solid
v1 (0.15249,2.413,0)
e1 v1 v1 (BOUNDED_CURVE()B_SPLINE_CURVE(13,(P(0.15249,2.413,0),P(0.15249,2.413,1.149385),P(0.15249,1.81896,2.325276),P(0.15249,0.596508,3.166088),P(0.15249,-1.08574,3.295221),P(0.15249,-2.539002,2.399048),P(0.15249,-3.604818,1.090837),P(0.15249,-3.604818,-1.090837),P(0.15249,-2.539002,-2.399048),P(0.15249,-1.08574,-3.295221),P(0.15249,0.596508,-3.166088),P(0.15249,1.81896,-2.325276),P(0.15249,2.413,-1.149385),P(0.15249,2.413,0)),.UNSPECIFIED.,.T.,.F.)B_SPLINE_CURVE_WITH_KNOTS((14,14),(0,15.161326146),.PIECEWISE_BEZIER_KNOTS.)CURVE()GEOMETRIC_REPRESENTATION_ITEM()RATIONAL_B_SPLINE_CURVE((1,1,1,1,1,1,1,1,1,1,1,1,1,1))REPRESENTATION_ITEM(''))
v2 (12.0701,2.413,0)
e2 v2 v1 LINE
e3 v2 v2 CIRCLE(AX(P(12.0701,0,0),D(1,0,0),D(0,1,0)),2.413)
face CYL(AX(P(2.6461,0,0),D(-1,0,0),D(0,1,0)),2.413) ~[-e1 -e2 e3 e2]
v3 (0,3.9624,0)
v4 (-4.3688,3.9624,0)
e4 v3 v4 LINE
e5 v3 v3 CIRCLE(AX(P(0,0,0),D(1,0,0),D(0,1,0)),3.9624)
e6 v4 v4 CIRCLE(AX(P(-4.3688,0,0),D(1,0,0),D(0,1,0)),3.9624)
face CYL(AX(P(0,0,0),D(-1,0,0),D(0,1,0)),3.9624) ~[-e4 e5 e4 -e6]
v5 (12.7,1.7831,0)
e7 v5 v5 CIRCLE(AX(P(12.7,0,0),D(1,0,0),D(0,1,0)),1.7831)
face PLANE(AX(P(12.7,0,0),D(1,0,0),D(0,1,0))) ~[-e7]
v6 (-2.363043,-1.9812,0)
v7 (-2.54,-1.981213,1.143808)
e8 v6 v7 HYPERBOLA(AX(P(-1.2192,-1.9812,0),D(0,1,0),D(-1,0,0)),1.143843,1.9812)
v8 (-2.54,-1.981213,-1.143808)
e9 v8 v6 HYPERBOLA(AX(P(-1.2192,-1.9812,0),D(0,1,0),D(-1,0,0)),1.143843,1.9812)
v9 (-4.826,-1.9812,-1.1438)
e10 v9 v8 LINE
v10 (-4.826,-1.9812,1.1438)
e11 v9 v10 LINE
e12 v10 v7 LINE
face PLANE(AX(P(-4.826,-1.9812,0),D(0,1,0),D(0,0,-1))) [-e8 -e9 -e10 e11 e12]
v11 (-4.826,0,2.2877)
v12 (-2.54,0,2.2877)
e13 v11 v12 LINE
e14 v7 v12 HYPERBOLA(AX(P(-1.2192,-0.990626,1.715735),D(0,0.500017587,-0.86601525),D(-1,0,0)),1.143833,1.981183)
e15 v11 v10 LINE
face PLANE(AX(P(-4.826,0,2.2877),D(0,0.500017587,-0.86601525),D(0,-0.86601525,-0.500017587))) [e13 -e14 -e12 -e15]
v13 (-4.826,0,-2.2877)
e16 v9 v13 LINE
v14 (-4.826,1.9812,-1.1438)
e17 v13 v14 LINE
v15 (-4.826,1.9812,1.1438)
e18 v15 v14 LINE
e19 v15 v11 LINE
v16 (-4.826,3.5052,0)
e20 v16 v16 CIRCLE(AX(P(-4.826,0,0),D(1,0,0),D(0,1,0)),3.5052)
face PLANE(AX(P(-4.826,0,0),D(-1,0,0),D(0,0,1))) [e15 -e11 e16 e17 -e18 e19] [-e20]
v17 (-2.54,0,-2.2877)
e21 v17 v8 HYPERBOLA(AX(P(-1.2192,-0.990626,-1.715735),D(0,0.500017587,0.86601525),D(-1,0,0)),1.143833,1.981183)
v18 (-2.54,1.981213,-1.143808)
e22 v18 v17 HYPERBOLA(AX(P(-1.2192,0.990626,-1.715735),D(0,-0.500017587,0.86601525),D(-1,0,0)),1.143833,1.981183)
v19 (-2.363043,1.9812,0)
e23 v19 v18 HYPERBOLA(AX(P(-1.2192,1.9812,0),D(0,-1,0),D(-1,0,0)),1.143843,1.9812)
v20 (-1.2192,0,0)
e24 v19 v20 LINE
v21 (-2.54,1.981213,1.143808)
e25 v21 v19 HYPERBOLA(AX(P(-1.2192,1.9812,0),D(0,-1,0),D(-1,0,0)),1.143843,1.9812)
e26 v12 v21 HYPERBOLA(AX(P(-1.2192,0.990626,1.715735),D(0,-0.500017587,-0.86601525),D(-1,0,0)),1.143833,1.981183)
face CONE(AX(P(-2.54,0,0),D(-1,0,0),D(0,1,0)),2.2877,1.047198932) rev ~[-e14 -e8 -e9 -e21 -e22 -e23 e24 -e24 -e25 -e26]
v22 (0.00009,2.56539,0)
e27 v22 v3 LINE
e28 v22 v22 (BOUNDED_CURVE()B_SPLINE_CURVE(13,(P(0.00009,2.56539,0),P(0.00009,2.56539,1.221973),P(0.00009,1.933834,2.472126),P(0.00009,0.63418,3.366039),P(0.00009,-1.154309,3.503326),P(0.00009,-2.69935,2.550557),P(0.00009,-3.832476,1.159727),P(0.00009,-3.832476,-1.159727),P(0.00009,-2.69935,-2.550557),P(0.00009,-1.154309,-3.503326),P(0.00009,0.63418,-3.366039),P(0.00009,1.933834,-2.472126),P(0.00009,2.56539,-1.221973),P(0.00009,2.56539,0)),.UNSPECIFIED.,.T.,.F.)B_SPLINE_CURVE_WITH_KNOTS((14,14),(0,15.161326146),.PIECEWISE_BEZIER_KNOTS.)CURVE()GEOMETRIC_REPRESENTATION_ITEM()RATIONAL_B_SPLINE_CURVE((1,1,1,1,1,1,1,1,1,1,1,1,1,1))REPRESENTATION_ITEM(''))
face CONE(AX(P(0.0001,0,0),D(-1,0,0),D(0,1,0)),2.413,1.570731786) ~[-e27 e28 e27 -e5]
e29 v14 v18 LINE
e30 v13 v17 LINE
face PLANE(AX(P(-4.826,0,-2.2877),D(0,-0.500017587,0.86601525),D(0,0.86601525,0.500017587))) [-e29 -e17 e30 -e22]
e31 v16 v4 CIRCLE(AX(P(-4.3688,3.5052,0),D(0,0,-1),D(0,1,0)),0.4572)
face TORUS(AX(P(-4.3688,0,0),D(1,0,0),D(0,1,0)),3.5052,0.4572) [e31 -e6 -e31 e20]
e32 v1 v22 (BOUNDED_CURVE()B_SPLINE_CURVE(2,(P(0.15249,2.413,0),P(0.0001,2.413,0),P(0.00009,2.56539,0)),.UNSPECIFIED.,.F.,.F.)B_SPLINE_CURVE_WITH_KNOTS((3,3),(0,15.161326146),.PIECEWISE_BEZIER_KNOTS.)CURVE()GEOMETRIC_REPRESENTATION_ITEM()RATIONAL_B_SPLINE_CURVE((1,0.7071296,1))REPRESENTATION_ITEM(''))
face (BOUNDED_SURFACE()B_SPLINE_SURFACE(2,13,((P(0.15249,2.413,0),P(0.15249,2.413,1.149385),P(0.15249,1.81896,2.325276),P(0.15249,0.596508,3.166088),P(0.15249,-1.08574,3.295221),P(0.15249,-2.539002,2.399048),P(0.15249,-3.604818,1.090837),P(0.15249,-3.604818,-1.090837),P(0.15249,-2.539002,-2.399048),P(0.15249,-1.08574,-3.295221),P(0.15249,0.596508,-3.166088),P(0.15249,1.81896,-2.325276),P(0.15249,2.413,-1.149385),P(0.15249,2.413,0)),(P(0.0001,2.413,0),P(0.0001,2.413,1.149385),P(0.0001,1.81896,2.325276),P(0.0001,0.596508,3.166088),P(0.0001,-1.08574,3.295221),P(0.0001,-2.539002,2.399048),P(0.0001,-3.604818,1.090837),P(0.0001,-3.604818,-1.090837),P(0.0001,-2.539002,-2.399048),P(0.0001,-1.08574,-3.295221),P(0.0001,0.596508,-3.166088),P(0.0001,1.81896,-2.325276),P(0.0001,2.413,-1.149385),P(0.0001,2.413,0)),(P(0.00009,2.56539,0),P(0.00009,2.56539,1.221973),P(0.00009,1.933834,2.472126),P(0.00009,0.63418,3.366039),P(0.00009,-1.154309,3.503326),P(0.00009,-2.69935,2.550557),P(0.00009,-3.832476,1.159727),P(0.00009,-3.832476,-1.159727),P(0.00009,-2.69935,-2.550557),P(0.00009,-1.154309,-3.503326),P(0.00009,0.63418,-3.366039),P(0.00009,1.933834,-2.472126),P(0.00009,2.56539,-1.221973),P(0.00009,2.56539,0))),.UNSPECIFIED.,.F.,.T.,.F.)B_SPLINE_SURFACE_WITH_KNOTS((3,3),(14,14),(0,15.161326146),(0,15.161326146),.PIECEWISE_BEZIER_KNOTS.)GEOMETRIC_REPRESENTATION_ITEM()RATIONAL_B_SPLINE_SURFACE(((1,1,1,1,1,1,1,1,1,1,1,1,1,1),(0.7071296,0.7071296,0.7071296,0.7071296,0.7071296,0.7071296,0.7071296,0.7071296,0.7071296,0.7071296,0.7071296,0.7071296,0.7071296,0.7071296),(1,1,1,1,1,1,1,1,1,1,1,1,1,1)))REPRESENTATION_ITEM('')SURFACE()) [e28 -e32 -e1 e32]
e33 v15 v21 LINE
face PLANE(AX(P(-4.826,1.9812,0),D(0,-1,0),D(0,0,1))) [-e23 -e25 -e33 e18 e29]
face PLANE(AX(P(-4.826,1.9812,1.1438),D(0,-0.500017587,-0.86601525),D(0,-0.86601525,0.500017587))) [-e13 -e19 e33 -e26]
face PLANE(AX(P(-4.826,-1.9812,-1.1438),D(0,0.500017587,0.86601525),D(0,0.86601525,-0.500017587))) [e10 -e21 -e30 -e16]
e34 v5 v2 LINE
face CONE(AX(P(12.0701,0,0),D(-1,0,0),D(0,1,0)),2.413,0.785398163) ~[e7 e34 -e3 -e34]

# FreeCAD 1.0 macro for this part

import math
import FreeCAD as App
import Part
import Sketcher
from FreeCAD import Vector
Q = App.Units.Quantity


def edges_at(feature, points):
    """Names of the edges that pass closest to the given points."""
    edges = feature.Shape.Edges
    near = lambda p: min(range(len(edges)), key=lambda i: edges[i].distToShape(Part.Vertex(*p))[0])
    return sorted({f"Edge{near(p) + 1}" for p in points})

doc = App.newDocument("Part")
params = doc.addObject("Spreadsheet::Sheet", "Params")
for row, (alias, value) in enumerate([
    ("sketch1_width", "0.5 in"),
    ("sketch1_width2", "0.19 in"),
    ("sketch1_width3", "0.09 in"),
    ("sketch1_width4", "0.548 in"),
    ("sketch1_height", "0.095 in"),
    ("revolution_angle", "360 deg"),
    ("pad1_length", "2.463 mm"),
    ("fillet_radius", "0.018 in"),
    ("chamfer_size", "0.0247992 in"),
    ("chamfer_size2", "0.0247992 in"),
    ("fillet2_radius", "0.006 in"),
], start=1):
    params.set(f"A{row}", alias)
    params.set(f"B{row}", "=" + value)
    params.setAlias(f"B{row}", alias)

body = doc.addObject("PartDesign::Body", "Body")

# Sketch on XY plane
sketch1 = doc.addObject("Sketcher::SketchObject", "Sketch")
body.addObject(sketch1)
sketch1.AttachmentSupport = (doc.XY_Plane, [""])
sketch1.MapMode = "FlatFace"
sketch1.addGeometry([
    Part.LineSegment(Vector(-2.5, 2.3, 0), Vector(-1.2, 0, 0)),  # 0
    Part.LineSegment(Vector(-1.2, 0, 0), Vector(12.7, 0, 0)),  # 1
    Part.LineSegment(Vector(12.7, 0, 0), Vector(12.7, 2.4, 0)),  # 2
    Part.LineSegment(Vector(12.7, 2.4, 0), Vector(0, 2.4, 0)),  # 3
    Part.LineSegment(Vector(0, 2.4, 0), Vector(0, 4, 0)),  # 4
    Part.LineSegment(Vector(0, 4, 0), Vector(-4.8, 4, 0)),  # 5
    Part.LineSegment(Vector(-4.8, 4, 0), Vector(-4.8, 2.3, 0)),  # 6
    Part.LineSegment(Vector(-4.8, 2.3, 0), Vector(-2.5, 2.3, 0)),  # 7
], False)
sketch1.addConstraint([
    Sketcher.Constraint("Coincident", 0, 2, 1, 1),
    Sketcher.Constraint("Coincident", 1, 2, 2, 1),
    Sketcher.Constraint("Coincident", 2, 2, 3, 1),
    Sketcher.Constraint("Coincident", 3, 2, 4, 1),
    Sketcher.Constraint("Coincident", 4, 2, 5, 1),
    Sketcher.Constraint("Coincident", 5, 2, 6, 1),
    Sketcher.Constraint("Coincident", 6, 2, 7, 1),
    Sketcher.Constraint("Coincident", 7, 2, 0, 1),
    Sketcher.Constraint("Horizontal", 1),
    Sketcher.Constraint("Vertical", 2),
    Sketcher.Constraint("Horizontal", 3),
    Sketcher.Constraint("Vertical", 4),
    Sketcher.Constraint("Horizontal", 5),
    Sketcher.Constraint("Vertical", 6),
    Sketcher.Constraint("Horizontal", 7),
    Sketcher.Constraint("PointOnObject", 0, 2, -1),
    Sketcher.Constraint("PointOnObject", 3, 2, -2),
    Sketcher.Constraint("DistanceX", 3, 2, 3, 1, Q("0.5 in")),
    Sketcher.Constraint("Angle", 0, Q("-60 deg")),
    Sketcher.Constraint("DistanceX", 5, 2, 5, 1, Q("0.19 in")),
    Sketcher.Constraint("DistanceX", 7, 1, 7, 2, Q("0.09 in")),
    Sketcher.Constraint("DistanceX", 1, 1, 1, 2, Q("0.548 in")),
    Sketcher.Constraint("DistanceY", 2, 1, 2, 2, Q("0.095 in")),
    Sketcher.Constraint("DistanceY", 4, 1, 4, 2, Q("0.061 in")),
])
sketch1.setExpression("Constraints[17]", "Params.sketch1_width")
sketch1.setExpression("Constraints[19]", "Params.sketch1_width2")
sketch1.setExpression("Constraints[20]", "Params.sketch1_width3")
sketch1.setExpression("Constraints[21]", "Params.sketch1_width4")
sketch1.setExpression("Constraints[22]", "Params.sketch1_height")
revolution = doc.addObject("PartDesign::Revolution", "Revolution")
body.addObject(revolution)
revolution.Profile = sketch1
revolution.ReferenceAxis = (sketch1, ["H_Axis"])
revolution.setExpression("Angle", "Params.revolution_angle")

# Sketch on YZ plane
sketch2 = doc.addObject("Sketcher::SketchObject", "Sketch001")
body.addObject(sketch2)
sketch2.AttachmentSupport = (doc.YZ_Plane, [""])
sketch2.MapMode = "FlatFace"
sketch2.AttachmentOffset = App.Placement(Vector(0, 0, -0.19 * 25.4), App.Rotation())
sketch2.addGeometry([
    Part.LineSegment(Vector(2, 1.1, 0), Vector(0, 2.3, 0)),  # 0
    Part.ArcOfCircle(Part.Circle(Vector(0, 0, 0), Vector(0, 0, 1), 2.3), math.radians(30), math.radians(90)),  # 1
    Part.ArcOfCircle(Part.Circle(Vector(0, 0, 0), Vector(0, 0, 1), 2.3), math.radians(90), math.radians(150)),  # 2
    Part.LineSegment(Vector(0, 2.3, 0), Vector(-2, 1.1, 0)),  # 3
    Part.ArcOfCircle(Part.Circle(Vector(0, 0, 0), Vector(0, 0, 1), 2.3), math.radians(-30), math.radians(30)),  # 4
    Part.LineSegment(Vector(2, 1.1, 0), Vector(2, -1.1, 0)),  # 5
    Part.LineSegment(Vector(-2, 1.1, 0), Vector(-2, -1.1, 0)),  # 6
    Part.ArcOfCircle(Part.Circle(Vector(0, 0, 0), Vector(0, 0, 1), 2.3), math.radians(150), math.radians(210)),  # 7
    Part.LineSegment(Vector(-2, -1.1, 0), Vector(0, -2.3, 0)),  # 8
    Part.ArcOfCircle(Part.Circle(Vector(0, 0, 0), Vector(0, 0, 1), 2.3), math.radians(-150), math.radians(-90)),  # 9
    Part.ArcOfCircle(Part.Circle(Vector(0, 0, 0), Vector(0, 0, 1), 2.3), math.radians(-90), math.radians(-30)),  # 10
    Part.LineSegment(Vector(0, -2.3, 0), Vector(2, -1.1, 0)),  # 11
], False)
sketch2.addConstraint([
    Sketcher.Constraint("Coincident", 0, 1, 1, 1),
    Sketcher.Constraint("Coincident", 1, 2, 0, 2),
    Sketcher.Constraint("Coincident", 2, 1, 3, 1),
    Sketcher.Constraint("Coincident", 3, 2, 2, 2),
    Sketcher.Constraint("Coincident", 4, 1, 5, 2),
    Sketcher.Constraint("Coincident", 5, 1, 4, 2),
    Sketcher.Constraint("Coincident", 6, 1, 7, 1),
    Sketcher.Constraint("Coincident", 7, 2, 6, 2),
    Sketcher.Constraint("Coincident", 8, 1, 9, 1),
    Sketcher.Constraint("Coincident", 9, 2, 8, 2),
    Sketcher.Constraint("Coincident", 10, 1, 11, 1),
    Sketcher.Constraint("Coincident", 11, 2, 10, 2),
    Sketcher.Constraint("Vertical", 5),
    Sketcher.Constraint("Vertical", 6),
    Sketcher.Constraint("Coincident", 1, 3, -1, 1),
    Sketcher.Constraint("Coincident", 2, 3, -1, 1),
    Sketcher.Constraint("Coincident", 4, 3, -1, 1),
    Sketcher.Constraint("Coincident", 7, 3, -1, 1),
    Sketcher.Constraint("Coincident", 9, 3, -1, 1),
    Sketcher.Constraint("Coincident", 10, 3, -1, 1),
    Sketcher.Constraint("Coincident", 2, 1, 1, 2),
    Sketcher.Constraint("Coincident", 5, 1, 0, 1),
    Sketcher.Constraint("Coincident", 6, 1, 3, 2),
    Sketcher.Constraint("Coincident", 8, 1, 7, 2),
    Sketcher.Constraint("Coincident", 10, 1, 9, 2),
    Sketcher.Constraint("PointOnObject", 1, 2, -2),
    Sketcher.Constraint("PointOnObject", 9, 2, -2),
    Sketcher.Constraint("Parallel", 0, 8),
    Sketcher.Constraint("Parallel", 3, 11),
    Sketcher.Constraint("Angle", 0, Q("149.9988 deg")),
    Sketcher.Constraint("Radius", 1, Q("2.2877 mm")),
])
pad1 = doc.addObject("PartDesign::Pad", "Pad")
body.addObject(pad1)
pad1.Profile = sketch2
pad1.setExpression("Length", "Params.pad1_length")
doc.recompute()

fillet = doc.addObject("PartDesign::Fillet", "Fillet")
body.addObject(fillet)
fillet.Base = (pad1, edges_at(pad1, [(-4.826, -3.962, 0)]))
fillet.setExpression("Radius", "Params.fillet_radius")
doc.recompute()

chamfer = doc.addObject("PartDesign::Chamfer", "Chamfer")
body.addObject(chamfer)
chamfer.Base = (fillet, edges_at(fillet, [(12.7, -2.413, 0)]))
chamfer.ChamferType = "Two distances"
chamfer.setExpression("Size", "Params.chamfer_size")
chamfer.setExpression("Size2", "Params.chamfer_size2")
doc.recompute()

fillet2 = doc.addObject("PartDesign::Fillet", "Fillet001")
body.addObject(fillet2)
fillet2.Base = (chamfer, edges_at(chamfer, [(0, -2.413, 0)]))
fillet2.setExpression("Radius", "Params.fillet2_radius")

doc.recompute()
